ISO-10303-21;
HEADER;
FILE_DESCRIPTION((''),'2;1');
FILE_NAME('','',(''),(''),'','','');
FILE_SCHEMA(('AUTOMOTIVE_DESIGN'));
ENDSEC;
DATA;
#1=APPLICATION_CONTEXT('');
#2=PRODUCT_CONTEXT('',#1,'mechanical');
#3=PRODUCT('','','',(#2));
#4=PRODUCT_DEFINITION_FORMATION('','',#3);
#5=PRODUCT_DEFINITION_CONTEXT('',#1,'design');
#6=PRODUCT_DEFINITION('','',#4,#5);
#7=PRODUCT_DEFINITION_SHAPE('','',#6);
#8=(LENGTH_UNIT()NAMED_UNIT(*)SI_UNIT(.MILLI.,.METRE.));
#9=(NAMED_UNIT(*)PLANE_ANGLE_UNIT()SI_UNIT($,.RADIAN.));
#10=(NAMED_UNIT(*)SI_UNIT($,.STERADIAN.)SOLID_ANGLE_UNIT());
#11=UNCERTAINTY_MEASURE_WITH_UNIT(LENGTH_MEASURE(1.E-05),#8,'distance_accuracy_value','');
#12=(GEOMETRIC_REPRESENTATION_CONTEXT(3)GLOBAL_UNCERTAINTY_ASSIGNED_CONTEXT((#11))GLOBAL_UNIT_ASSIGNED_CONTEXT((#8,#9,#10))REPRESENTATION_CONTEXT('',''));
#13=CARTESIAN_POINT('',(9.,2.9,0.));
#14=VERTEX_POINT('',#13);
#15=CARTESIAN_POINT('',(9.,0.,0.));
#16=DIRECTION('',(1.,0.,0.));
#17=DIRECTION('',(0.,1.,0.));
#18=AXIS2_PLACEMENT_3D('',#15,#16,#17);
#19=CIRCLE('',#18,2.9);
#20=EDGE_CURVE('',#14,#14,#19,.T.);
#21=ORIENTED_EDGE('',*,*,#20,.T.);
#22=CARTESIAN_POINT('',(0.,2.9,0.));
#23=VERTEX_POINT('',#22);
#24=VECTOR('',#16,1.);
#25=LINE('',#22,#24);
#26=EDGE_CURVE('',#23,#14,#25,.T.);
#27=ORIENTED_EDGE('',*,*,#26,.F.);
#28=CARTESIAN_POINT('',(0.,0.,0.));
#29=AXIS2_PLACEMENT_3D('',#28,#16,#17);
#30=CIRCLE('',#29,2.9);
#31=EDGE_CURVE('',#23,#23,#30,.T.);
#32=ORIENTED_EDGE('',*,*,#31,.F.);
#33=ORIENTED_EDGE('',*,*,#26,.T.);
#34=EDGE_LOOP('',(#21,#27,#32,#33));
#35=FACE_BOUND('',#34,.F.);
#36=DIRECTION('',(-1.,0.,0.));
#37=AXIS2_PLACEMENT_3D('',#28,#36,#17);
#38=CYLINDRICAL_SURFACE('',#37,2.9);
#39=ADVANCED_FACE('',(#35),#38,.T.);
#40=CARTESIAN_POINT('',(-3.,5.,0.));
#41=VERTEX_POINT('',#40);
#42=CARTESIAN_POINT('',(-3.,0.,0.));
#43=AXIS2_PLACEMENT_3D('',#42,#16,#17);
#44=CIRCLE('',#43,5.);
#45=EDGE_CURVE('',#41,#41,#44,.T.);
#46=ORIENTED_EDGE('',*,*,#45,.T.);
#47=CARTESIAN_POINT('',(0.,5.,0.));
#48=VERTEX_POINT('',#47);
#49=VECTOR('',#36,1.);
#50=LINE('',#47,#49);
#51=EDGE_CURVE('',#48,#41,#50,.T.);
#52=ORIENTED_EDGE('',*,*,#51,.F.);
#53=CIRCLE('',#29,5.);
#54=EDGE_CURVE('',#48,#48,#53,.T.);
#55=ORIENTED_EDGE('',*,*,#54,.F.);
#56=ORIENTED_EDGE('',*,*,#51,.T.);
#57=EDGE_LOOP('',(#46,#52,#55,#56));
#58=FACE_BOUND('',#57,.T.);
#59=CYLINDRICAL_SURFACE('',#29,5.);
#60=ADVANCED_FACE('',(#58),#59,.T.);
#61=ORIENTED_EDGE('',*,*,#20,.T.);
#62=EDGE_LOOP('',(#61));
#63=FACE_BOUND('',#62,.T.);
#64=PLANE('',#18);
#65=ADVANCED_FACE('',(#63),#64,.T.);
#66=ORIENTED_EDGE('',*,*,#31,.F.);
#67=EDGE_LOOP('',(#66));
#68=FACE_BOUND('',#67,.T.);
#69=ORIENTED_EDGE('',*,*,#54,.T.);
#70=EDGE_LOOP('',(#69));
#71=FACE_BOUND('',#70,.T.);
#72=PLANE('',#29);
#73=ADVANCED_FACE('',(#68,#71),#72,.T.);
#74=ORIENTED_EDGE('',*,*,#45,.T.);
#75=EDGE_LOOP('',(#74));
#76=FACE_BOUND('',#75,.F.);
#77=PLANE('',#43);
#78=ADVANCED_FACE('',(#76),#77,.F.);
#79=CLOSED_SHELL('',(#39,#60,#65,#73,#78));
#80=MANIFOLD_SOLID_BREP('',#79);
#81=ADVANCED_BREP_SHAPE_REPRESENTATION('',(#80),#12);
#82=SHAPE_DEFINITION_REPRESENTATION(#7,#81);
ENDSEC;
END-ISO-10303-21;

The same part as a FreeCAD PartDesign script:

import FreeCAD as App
import Part
import Sketcher

V = App.Vector
Q = App.Units.Quantity

doc = App.newDocument("Part")
params = doc.addObject("Spreadsheet::Sheet", "Params")
for row, (alias, value) in enumerate([
    ("sketch1_diameter", "5.8 mm"),
    ("pad1_length", "9 mm"),
    ("sketch2_diameter", "10 mm"),
    ("pad2_length", "3 mm"),
], start=1):
    params.set(f"A{row}", alias)
    params.set(f"B{row}", "=" + value)
    params.setAlias(f"B{row}", alias)

body = doc.addObject("PartDesign::Body", "Body")

# Sketch on YZ plane
sketch1 = body.newObject("Sketcher::SketchObject", "Sketch")
sketch1.AttachmentSupport = (doc.getObject("YZ_Plane"), [""])
sketch1.MapMode = "FlatFace"
sketch1.addGeometry(Part.Circle(V(0, 0, 0), V(0, 0, 1), 2.9), False)
sketch1.addConstraint(Sketcher.Constraint("Coincident", 0, 3, -1, 1))
sketch1.addConstraint(Sketcher.Constraint("Diameter", 0, Q("5.8 mm")))
sketch1.setExpression("Constraints[1]", "Params.sketch1_diameter")
pad1 = body.newObject("PartDesign::Pad", "Pad")
pad1.Profile = sketch1
pad1.setExpression("Length", "Params.pad1_length")

# Sketch on YZ plane
sketch2 = body.newObject("Sketcher::SketchObject", "Sketch001")
sketch2.AttachmentSupport = (doc.getObject("YZ_Plane"), [""])
sketch2.MapMode = "FlatFace"
sketch2.addGeometry(Part.Circle(V(0, 0, 0), V(0, 0, 1), 5), False)
sketch2.addConstraint(Sketcher.Constraint("Coincident", 0, 3, -1, 1))
sketch2.addConstraint(Sketcher.Constraint("Diameter", 0, Q("10 mm")))
sketch2.setExpression("Constraints[1]", "Params.sketch2_diameter")
pad2 = body.newObject("PartDesign::Pad", "Pad001")
pad2.Profile = sketch2
pad2.setExpression("Length", "Params.pad2_length")
pad2.Reversed = True

doc.recompute()
